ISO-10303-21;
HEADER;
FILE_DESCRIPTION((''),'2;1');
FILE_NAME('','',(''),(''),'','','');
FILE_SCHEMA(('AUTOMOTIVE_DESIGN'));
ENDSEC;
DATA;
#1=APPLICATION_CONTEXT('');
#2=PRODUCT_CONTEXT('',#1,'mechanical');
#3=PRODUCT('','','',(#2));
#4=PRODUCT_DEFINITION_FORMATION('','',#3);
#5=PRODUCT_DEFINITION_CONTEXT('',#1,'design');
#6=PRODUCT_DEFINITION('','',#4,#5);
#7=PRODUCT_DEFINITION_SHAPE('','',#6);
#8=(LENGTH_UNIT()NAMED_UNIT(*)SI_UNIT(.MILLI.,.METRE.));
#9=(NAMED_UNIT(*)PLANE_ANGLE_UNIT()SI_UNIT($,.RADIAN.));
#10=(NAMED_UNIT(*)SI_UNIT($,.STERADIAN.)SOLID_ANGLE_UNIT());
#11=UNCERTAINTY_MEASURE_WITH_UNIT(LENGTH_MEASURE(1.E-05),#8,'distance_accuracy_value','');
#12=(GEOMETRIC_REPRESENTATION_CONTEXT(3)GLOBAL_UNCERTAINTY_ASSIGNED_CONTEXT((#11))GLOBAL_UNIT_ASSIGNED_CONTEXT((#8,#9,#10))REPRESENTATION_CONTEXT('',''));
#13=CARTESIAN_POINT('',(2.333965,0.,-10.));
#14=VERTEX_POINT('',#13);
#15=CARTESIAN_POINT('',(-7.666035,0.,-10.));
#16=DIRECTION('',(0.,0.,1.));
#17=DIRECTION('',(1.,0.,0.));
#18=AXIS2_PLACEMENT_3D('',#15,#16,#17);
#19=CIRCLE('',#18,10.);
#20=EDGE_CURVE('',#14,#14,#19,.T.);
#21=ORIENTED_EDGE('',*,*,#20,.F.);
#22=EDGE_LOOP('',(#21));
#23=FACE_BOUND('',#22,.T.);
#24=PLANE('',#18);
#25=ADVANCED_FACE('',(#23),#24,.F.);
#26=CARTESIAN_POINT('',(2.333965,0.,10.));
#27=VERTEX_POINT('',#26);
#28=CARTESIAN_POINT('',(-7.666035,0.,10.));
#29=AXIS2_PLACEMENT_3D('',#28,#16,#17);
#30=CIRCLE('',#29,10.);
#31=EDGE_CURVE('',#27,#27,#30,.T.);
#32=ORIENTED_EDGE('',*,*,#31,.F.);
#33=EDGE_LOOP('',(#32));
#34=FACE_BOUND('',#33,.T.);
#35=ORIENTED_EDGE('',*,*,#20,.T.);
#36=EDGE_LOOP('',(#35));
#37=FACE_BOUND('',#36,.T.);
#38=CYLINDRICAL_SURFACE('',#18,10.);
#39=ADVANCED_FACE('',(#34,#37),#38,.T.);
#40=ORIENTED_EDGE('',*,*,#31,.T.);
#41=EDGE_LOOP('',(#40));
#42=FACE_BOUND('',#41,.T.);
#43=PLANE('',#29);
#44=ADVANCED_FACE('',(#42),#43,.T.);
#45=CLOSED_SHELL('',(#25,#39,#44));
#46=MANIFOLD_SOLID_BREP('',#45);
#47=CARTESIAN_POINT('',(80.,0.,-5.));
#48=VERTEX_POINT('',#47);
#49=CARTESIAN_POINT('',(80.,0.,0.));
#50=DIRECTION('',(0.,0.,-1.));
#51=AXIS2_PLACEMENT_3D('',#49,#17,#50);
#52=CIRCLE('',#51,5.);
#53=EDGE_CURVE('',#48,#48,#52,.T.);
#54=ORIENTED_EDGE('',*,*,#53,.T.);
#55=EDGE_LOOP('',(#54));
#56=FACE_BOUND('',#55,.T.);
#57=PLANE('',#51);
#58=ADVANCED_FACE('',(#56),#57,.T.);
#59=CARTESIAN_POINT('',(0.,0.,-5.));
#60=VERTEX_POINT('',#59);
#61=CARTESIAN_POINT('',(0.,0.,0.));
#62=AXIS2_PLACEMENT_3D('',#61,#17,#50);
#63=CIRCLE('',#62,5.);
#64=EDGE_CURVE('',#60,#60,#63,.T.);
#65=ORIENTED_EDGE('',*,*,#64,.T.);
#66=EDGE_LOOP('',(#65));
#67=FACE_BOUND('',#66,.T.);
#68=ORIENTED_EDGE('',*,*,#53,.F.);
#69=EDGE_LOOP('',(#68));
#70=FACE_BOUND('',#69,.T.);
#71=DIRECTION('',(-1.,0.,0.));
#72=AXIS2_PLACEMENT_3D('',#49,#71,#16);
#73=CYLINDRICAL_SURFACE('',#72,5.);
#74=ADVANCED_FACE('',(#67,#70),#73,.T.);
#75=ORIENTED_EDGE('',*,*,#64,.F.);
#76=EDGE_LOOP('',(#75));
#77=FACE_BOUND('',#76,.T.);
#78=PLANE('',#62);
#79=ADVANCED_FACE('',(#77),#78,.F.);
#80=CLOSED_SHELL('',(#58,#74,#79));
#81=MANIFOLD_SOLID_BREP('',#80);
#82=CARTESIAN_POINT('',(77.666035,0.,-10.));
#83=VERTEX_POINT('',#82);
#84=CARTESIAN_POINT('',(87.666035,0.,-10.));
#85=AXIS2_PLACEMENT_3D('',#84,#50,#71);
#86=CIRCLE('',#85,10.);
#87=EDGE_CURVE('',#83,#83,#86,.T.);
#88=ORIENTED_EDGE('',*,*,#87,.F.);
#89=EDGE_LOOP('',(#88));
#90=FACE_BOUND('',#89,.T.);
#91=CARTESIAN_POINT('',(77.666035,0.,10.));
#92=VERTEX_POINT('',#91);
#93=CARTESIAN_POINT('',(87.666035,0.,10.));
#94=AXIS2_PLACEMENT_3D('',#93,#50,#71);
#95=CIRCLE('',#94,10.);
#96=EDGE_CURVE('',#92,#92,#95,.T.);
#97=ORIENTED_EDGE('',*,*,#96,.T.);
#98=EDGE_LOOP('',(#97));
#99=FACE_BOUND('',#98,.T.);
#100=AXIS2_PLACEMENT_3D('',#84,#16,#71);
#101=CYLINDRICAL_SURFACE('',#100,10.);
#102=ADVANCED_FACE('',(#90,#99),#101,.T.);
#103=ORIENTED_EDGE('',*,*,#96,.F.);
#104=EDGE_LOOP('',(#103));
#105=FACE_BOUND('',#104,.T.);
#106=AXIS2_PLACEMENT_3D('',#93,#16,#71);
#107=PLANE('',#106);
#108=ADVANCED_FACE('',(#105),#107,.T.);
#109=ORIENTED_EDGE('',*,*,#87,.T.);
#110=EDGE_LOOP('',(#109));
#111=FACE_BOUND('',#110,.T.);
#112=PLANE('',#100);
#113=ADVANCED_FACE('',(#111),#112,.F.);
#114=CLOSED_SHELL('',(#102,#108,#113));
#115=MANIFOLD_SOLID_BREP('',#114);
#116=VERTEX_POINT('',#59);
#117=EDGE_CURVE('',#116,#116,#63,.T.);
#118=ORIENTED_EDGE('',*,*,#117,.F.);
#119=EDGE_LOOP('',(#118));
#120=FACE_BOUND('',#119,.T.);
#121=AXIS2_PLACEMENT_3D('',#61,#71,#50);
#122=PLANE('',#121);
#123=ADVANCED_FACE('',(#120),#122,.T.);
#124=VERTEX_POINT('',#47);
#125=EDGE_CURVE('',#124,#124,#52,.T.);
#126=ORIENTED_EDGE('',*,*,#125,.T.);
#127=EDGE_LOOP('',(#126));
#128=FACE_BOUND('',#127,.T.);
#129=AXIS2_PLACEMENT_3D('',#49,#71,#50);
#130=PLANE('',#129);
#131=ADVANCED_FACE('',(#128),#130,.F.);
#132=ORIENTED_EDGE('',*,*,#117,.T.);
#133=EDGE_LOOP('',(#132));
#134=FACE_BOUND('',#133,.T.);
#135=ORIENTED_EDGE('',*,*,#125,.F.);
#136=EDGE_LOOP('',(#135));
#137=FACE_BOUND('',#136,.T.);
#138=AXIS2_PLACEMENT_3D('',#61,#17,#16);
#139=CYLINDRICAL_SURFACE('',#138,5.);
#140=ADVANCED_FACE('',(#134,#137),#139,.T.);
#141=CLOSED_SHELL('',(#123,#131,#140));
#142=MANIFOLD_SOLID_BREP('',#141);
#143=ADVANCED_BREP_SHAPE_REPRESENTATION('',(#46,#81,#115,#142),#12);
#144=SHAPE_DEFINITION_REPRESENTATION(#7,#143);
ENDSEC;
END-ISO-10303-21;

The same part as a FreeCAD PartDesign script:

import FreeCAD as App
import Part
import Sketcher

V = App.Vector
Q = App.Units.Quantity

doc = App.newDocument("Part")
body = doc.addObject("PartDesign::Body", "Body")

sketch1 = body.newObject("Sketcher::SketchObject", "Sketch")
sketch1.AttachmentSupport = (doc.getObject("YZ_Plane"), [""])
sketch1.MapMode = "FlatFace"
sketch1.addGeometry(Part.Circle(V(0, 0, 0), V(0, 0, 1), 5), False)
sketch1.addConstraint(Sketcher.Constraint("Coincident", 0, 3, -1, 1))
sketch1.addConstraint(Sketcher.Constraint("Diameter", 0, Q("10 mm")))
pad1 = body.newObject("PartDesign::Pad", "Pad")
pad1.Profile = sketch1
pad1.Length = 80
body2 = doc.addObject("PartDesign::Body", "Body001")

sketch2 = body2.newObject("Sketcher::SketchObject", "Sketch001")
sketch2.AttachmentSupport = (doc.getObject("XY_Plane001"), [""])
sketch2.MapMode = "FlatFace"
sketch2.addGeometry(Part.Circle(V(-7.666035, 0, 0), V(0, 0, 1), 10), False)
sketch2.addConstraint(Sketcher.Constraint("PointOnObject", 0, 3, -1))
sketch2.addConstraint(Sketcher.Constraint("Diameter", 0, Q("20 mm")))
sketch2.addConstraint(Sketcher.Constraint("DistanceX", 0, 3, -1, 1, Q("7.666035 mm")))
pad2 = body2.newObject("PartDesign::Pad", "Pad001")
pad2.Profile = sketch2
pad2.Type = "TwoLengths"
pad2.Length = 10
pad2.Length2 = 10
body3 = doc.addObject("PartDesign::Body", "Body002")
doc.recompute()

mirroring = doc.addObject("Part::Mirroring", "Mirroring")
mirroring.Source = body
mirroring.Base = V(0, -224, 0)
mirroring.Normal = V(0, 1, 0)
body3.BaseFeature = mirroring
doc.recompute()
body4 = doc.addObject("PartDesign::Body", "Body003")
doc.recompute()

mirroring2 = doc.addObject("Part::Mirroring", "Mirroring001")
mirroring2.Source = body2
mirroring2.Base = V(0, -224, 0)
mirroring2.Normal = V(0, 1, 0)
body4.BaseFeature = mirroring2
doc.recompute()
body5 = doc.addObject("PartDesign::Body", "Body004")
doc.recompute()

mirroring3 = doc.addObject("Part::Mirroring", "Mirroring002")
mirroring3.Source = body
mirroring3.Base = V(40, 0, 0)
mirroring3.Normal = V(-1, 0, 0)
body5.BaseFeature = mirroring3
doc.recompute()
body6 = doc.addObject("PartDesign::Body", "Body005")
doc.recompute()

mirroring4 = doc.addObject("Part::Mirroring", "Mirroring003")
mirroring4.Source = body3
mirroring4.Base = V(40, 0, 0)
mirroring4.Normal = V(-1, 0, 0)
body6.BaseFeature = mirroring4
doc.recompute()
body7 = doc.addObject("PartDesign::Body", "Body006")
doc.recompute()

mirroring5 = doc.addObject("Part::Mirroring", "Mirroring004")
mirroring5.Source = body4
mirroring5.Base = V(40, 0, 0)
mirroring5.Normal = V(-1, 0, 0)
body7.BaseFeature = mirroring5
doc.recompute()
body8 = doc.addObject("PartDesign::Body", "Body007")
doc.recompute()

mirroring6 = doc.addObject("Part::Mirroring", "Mirroring005")
mirroring6.Source = body2
mirroring6.Base = V(40, 0, 0)
mirroring6.Normal = V(-1, 0, 0)
body8.BaseFeature = mirroring6
doc.recompute()
body3.Visibility = False
body4.Visibility = False
body6.Visibility = False
body7.Visibility = False
mirroring.Visibility = False
mirroring2.Visibility = False
mirroring3.Visibility = False
mirroring4.Visibility = False
mirroring5.Visibility = False
mirroring6.Visibility = False

doc.recompute()
